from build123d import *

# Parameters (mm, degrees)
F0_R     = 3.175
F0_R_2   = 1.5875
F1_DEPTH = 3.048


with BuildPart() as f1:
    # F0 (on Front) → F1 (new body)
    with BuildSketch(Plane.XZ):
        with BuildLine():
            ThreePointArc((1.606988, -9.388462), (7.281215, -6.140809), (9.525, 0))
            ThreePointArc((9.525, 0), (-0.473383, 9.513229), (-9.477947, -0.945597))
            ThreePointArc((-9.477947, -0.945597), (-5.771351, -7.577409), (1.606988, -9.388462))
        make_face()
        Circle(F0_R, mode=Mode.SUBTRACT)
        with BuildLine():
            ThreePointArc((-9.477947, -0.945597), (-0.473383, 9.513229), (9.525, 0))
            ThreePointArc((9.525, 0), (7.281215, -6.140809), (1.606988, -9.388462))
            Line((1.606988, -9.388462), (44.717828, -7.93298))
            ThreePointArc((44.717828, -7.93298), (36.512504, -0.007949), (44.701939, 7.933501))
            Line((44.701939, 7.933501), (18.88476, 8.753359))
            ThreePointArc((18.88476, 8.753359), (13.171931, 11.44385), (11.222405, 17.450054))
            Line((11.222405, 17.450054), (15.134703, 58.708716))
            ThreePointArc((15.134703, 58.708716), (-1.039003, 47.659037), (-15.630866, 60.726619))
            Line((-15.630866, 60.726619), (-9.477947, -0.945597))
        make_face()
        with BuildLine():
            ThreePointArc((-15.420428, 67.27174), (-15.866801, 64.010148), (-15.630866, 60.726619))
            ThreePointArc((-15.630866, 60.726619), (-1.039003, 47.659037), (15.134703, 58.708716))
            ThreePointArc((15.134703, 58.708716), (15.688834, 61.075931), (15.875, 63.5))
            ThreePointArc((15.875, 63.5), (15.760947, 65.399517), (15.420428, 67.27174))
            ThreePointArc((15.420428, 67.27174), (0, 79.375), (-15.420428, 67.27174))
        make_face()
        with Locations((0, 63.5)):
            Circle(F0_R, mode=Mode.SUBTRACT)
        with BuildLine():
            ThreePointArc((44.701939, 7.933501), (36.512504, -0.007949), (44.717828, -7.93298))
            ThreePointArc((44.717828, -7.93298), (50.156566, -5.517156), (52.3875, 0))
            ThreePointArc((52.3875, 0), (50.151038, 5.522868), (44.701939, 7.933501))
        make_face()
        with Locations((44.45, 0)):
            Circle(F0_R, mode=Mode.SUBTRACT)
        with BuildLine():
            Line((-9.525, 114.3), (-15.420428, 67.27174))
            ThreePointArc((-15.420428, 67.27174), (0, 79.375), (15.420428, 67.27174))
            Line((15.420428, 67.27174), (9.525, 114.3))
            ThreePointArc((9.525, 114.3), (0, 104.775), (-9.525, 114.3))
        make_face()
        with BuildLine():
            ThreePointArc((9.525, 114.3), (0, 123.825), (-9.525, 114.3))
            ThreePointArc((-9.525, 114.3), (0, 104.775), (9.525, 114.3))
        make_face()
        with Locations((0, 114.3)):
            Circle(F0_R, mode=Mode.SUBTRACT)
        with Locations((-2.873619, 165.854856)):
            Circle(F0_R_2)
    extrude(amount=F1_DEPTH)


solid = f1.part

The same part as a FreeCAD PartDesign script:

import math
import FreeCAD as App
import Part
import Sketcher
Q = App.Units.Quantity

doc = App.newDocument("Part")
body = doc.addObject("PartDesign::Body", "Body")
body.AllowCompound = True

# Sketch on XZ plane
sketch1 = body.newObject("Sketcher::SketchObject", "Sketch")
sketch1.AttachmentSupport = (doc.getObject("XZ_Plane"), [""])
sketch1.MapMode = "FlatFace"
sketch1.addGeometry(Part.ArcOfCircle(Part.Circle(App.Vector(0.000001, 0.000002, 0), App.Vector(0, 0, 1), 9.525002), math.radians(-174.302552), math.radians(-80.28703)), False)
sketch1.addGeometry(Part.LineSegment(App.Vector(1.606988, -9.388462, 0), App.Vector(44.717828, -7.93298, 0)), False)
sketch1.addGeometry(Part.ArcOfCircle(Part.Circle(App.Vector(44.45, 0, 0), App.Vector(0, 0, 1), 7.9375), math.radians(-88.066354), math.radians(0)), False)
sketch1.addGeometry(Part.ArcOfCircle(Part.Circle(App.Vector(44.449999, 0, 0), App.Vector(0, 0, 1), 7.937501), math.radians(0.000003), math.radians(88.181101)), False)
sketch1.addGeometry(Part.LineSegment(App.Vector(44.701939, 7.933501, 0), App.Vector(18.88476, 8.753359, 0)), False)
sketch1.addGeometry(Part.ArcOfCircle(Part.Circle(App.Vector(19.137102, 16.699553, 0), App.Vector(0, 0, 1), 7.9502), math.radians(174.583197), math.radians(268.181109)), False)
sketch1.addGeometry(Part.LineSegment(App.Vector(11.222405, 17.450054, 0), App.Vector(15.134703, 58.708716, 0)), False)
sketch1.addGeometry(Part.ArcOfCircle(Part.Circle(App.Vector(-0.000022, 63.500002, 0), App.Vector(0, 0, 1), 15.875022), math.radians(-17.566521), math.radians(-0.000008)), False)
sketch1.addGeometry(Part.ArcOfCircle(Part.Circle(App.Vector(-0.000037, 63.499995, 0), App.Vector(0, 0, 1), 15.875037), math.radians(0.000017), math.radians(13.744324)), False)
sketch1.addGeometry(Part.LineSegment(App.Vector(15.420428, 67.27174, 0), App.Vector(9.525, 114.3, 0)), False)
sketch1.addGeometry(Part.ArcOfCircle(Part.Circle(App.Vector(0, 114.3, 0), App.Vector(0, 0, 1), 9.525), math.radians(0), math.radians(180)), False)
sketch1.addGeometry(Part.LineSegment(App.Vector(-9.525, 114.3, 0), App.Vector(-15.420428, 67.27174, 0)), False)
sketch1.addGeometry(Part.ArcOfCircle(Part.Circle(App.Vector(-0.00001, 63.500001, 0), App.Vector(0, 0, 1), 15.87499), math.radians(166.255656), math.radians(190.061278)), False)
sketch1.addGeometry(Part.LineSegment(App.Vector(-15.630866, 60.726619, 0), App.Vector(-9.477947, -0.945597, 0)), False)
sketch1.addGeometry(Part.Circle(App.Vector(0, 0, 0), App.Vector(0, 0, 1), 3.175), False)
sketch1.addGeometry(Part.Circle(App.Vector(44.45, 0, 0), App.Vector(0, 0, 1), 3.175), False)
sketch1.addGeometry(Part.Circle(App.Vector(0, 63.5, 0), App.Vector(0, 0, 1), 3.175), False)
sketch1.addGeometry(Part.Circle(App.Vector(0, 114.3, 0), App.Vector(0, 0, 1), 3.175), False)
sketch1.addGeometry(Part.Circle(App.Vector(-2.873619, 165.854856, 0), App.Vector(0, 0, 1), 1.5875), False)
sketch1.addConstraint(Sketcher.Constraint("Coincident", 0, 2, 1, 1))
sketch1.addConstraint(Sketcher.Constraint("Coincident", 1, 2, 2, 1))
sketch1.addConstraint(Sketcher.Constraint("Coincident", 2, 2, 3, 1))
sketch1.addConstraint(Sketcher.Constraint("Coincident", 3, 2, 4, 1))
sketch1.addConstraint(Sketcher.Constraint("Coincident", 4, 2, 5, 2))
sketch1.addConstraint(Sketcher.Constraint("Coincident", 5, 1, 6, 1))
sketch1.addConstraint(Sketcher.Constraint("Coincident", 6, 2, 7, 1))
sketch1.addConstraint(Sketcher.Constraint("Coincident", 7, 2, 8, 1))
sketch1.addConstraint(Sketcher.Constraint("Coincident", 8, 2, 9, 1))
sketch1.addConstraint(Sketcher.Constraint("Coincident", 9, 2, 10, 1))
sketch1.addConstraint(Sketcher.Constraint("Coincident", 10, 2, 11, 1))
sketch1.addConstraint(Sketcher.Constraint("Coincident", 11, 2, 12, 1))
sketch1.addConstraint(Sketcher.Constraint("Coincident", 12, 2, 13, 1))
sketch1.addConstraint(Sketcher.Constraint("Coincident", 13, 2, 0, 1))
sketch1.addConstraint(Sketcher.Constraint("Coincident", 0, 3, -1, 1))
sketch1.addConstraint(Sketcher.Constraint("Coincident", 14, 3, -1, 1))
sketch1.addConstraint(Sketcher.Constraint("Coincident", 3, 3, 2, 3))
sketch1.addConstraint(Sketcher.Constraint("Coincident", 15, 3, 2, 3))
sketch1.addConstraint(Sketcher.Constraint("Coincident", 16, 3, 12, 3))
sketch1.addConstraint(Sketcher.Constraint("Coincident", 17, 3, 10, 3))
sketch1.addConstraint(Sketcher.Constraint("PointOnObject", 2, 3, -1))
sketch1.addConstraint(Sketcher.Constraint("PointOnObject", 10, 3, -2))
sketch1.addConstraint(Sketcher.Constraint("PointOnObject", 16, 3, -2))
sketch1.addConstraint(Sketcher.Constraint("PointOnObject", 2, 2, -1))
sketch1.addConstraint(Sketcher.Constraint("Diameter", 14, Q("0.25 in")))
sketch1.addConstraint(Sketcher.Constraint("Diameter", 15, Q("0.25 in")))
sketch1.addConstraint(Sketcher.Constraint("Diameter", 16, Q("0.25 in")))
sketch1.addConstraint(Sketcher.Constraint("Diameter", 17, Q("0.25 in")))
sketch1.addConstraint(Sketcher.Constraint("Diameter", 18, Q("0.125 in")))
sketch1.addConstraint(Sketcher.Constraint("Radius", 0, Q("0.3750001 in")))
sketch1.addConstraint(Sketcher.Constraint("Radius", 2, Q("0.3125 in")))
sketch1.addConstraint(Sketcher.Constraint("Radius", 5, Q("0.313 in")))
sketch1.addConstraint(Sketcher.Constraint("Radius", 10, Q("0.375 in")))
sketch1.addConstraint(Sketcher.Constraint("DistanceY", 7, 3, 10, 3, Q("1.9999999 in")))
sketch1.addConstraint(Sketcher.Constraint("DistanceY", 8, 3, 10, 3, Q("2.0000002 in")))
sketch1.addConstraint(Sketcher.Constraint("DistanceY", 12, 3, 10, 3, Q("2 in")))
sketch1.addConstraint(Sketcher.Constraint("DistanceY", 7, 2, 9, 2, Q("2 in")))
sketch1.addConstraint(Sketcher.Constraint("DistanceY", 16, 3, 9, 2, Q("2 in")))
sketch1.addConstraint(Sketcher.Constraint("DistanceY", 7, 3, 10, 2, Q("1.9999999 in")))
sketch1.addConstraint(Sketcher.Constraint("DistanceY", -1, 1, 7, 3, Q("2.5000001 in")))
sketch1.addConstraint(Sketcher.Constraint("DistanceX", -1, 1, 2, 3, Q("1.75 in")))
sketch1.addConstraint(Sketcher.Constraint("DistanceX", 9, 2, 7, 2, Q("0.25 in")))
sketch1.addConstraint(Sketcher.Constraint("Radius", 12, Q("15.87499 mm")))
sketch1.addConstraint(Sketcher.Constraint("Radius", 7, Q("15.875022 mm")))
sketch1.addConstraint(Sketcher.Constraint("Radius", 8, Q("15.875037 mm")))
sketch1.addConstraint(Sketcher.Constraint("DistanceX", -1, 1, 5, 3, Q("19.137102 mm")))
sketch1.addConstraint(Sketcher.Constraint("DistanceY", -1, 1, 3, 2, Q("7.933501 mm")))
sketch1.addConstraint(Sketcher.Constraint("DistanceY", 5, 3, 5, 1, Q("0.750501 mm")))
sketch1.addConstraint(Sketcher.Constraint("DistanceY", 13, 2, 0, 3, Q("0.945599 mm")))
sketch1.addConstraint(Sketcher.Constraint("Distance", 13, Q("61.978388 mm")))
sketch1.addConstraint(Sketcher.Constraint("DistanceX", 18, 3, -1, 1, Q("2.873619 mm")))
sketch1.addConstraint(Sketcher.Constraint("DistanceX", -1, 1, 0, 2, Q("1.606988 mm")))
sketch1.addConstraint(Sketcher.Constraint("DistanceY", 1, 2, -1, 1, Q("7.93298 mm")))
sketch1.addConstraint(Sketcher.Constraint("DistanceX", -1, 1, 4, 2, Q("18.88476 mm")))
sketch1.addConstraint(Sketcher.Constraint("DistanceY", -1, 1, 4, 2, Q("8.753359 mm")))
sketch1.addConstraint(Sketcher.Constraint("DistanceX", -1, 1, 8, 2, Q("15.420428 mm")))
sketch1.addConstraint(Sketcher.Constraint("DistanceY", -1, 1, 11, 2, Q("67.27174 mm")))
sketch1.addConstraint(Sketcher.Constraint("DistanceX", 8, 3, 6, 2, Q("15.13474 mm")))
sketch1.addConstraint(Sketcher.Constraint("DistanceY", -1, 1, 18, 3, Q("165.854856 mm")))
pad1 = body.newObject("PartDesign::Pad", "Pad")
pad1.Profile = sketch1
pad1.Length = Q("0.12 in")

doc.recompute()
